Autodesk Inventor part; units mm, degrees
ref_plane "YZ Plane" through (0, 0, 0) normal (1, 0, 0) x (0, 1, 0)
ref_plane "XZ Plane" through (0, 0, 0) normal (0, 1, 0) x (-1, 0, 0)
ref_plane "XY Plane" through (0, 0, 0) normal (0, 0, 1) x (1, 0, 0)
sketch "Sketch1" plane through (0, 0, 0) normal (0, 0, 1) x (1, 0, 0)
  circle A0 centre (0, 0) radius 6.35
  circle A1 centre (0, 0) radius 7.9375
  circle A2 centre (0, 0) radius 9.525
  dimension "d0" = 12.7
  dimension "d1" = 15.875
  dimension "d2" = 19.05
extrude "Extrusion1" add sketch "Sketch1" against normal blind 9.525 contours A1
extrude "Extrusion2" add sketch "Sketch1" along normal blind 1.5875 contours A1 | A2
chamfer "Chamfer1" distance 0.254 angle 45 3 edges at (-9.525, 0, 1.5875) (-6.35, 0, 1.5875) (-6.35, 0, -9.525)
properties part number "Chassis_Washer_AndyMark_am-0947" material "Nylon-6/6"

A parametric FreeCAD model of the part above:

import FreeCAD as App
import Part
import Sketcher
from FreeCAD import Vector
Q = App.Units.Quantity


def edges_at(feature, points):
    """Names of the edges that pass closest to the given points."""
    edges = feature.Shape.Edges
    near = lambda p: min(range(len(edges)), key=lambda i: edges[i].distToShape(Part.Vertex(*p))[0])
    return sorted({f"Edge{near(p) + 1}" for p in points})

doc = App.newDocument("Part")
body = doc.addObject("PartDesign::Body", "Body")

# Sketch on XY plane
sketch1 = doc.addObject("Sketcher::SketchObject", "Sketch")
body.addObject(sketch1)
sketch1.AttachmentSupport = (doc.XY_Plane, [""])
sketch1.MapMode = "FlatFace"
sketch1.addGeometry(Part.Circle(Vector(0, 0, 0), Vector(0, 0, 1), 7.9375), False)
sketch1.addGeometry(Part.Circle(Vector(0, 0, 0), Vector(0, 0, 1), 6.35), False)
sketch1.addConstraint(Sketcher.Constraint("Coincident", 0, 3, -1, 1))
sketch1.addConstraint(Sketcher.Constraint("Coincident", 1, 3, -1, 1))
sketch1.addConstraint(Sketcher.Constraint("Diameter", 1, Q("0.5 in")))
sketch1.addConstraint(Sketcher.Constraint("Diameter", 0, Q("0.625 in")))
pad1 = doc.addObject("PartDesign::Pad", "Pad")
body.addObject(pad1)
pad1.Profile = sketch1
pad1.Length = Q("0.375 in")
pad1.Reversed = True

# Sketch on XY plane
sketch2 = doc.addObject("Sketcher::SketchObject", "Sketch001")
body.addObject(sketch2)
sketch2.AttachmentSupport = (doc.XY_Plane, [""])
sketch2.MapMode = "FlatFace"
sketch2.addGeometry(Part.Circle(Vector(0, 0, 0), Vector(0, 0, 1), 9.525), False)
sketch2.addGeometry(Part.Circle(Vector(0, 0, 0), Vector(0, 0, 1), 6.35), False)
sketch2.addConstraint(Sketcher.Constraint("Coincident", 0, 3, -1, 1))
sketch2.addConstraint(Sketcher.Constraint("Coincident", 1, 3, -1, 1))
sketch2.addConstraint(Sketcher.Constraint("Diameter", 1, Q("0.5 in")))
sketch2.addConstraint(Sketcher.Constraint("Diameter", 0, Q("0.75 in")))
pad2 = doc.addObject("PartDesign::Pad", "Pad001")
body.addObject(pad2)
pad2.Profile = sketch2
pad2.Length = Q("0.0625 in")
doc.recompute()

chamfer = doc.addObject("PartDesign::Chamfer", "Chamfer")
body.addObject(chamfer)
chamfer.Base = (pad2, edges_at(pad2, [(-9.525, 0, 1.587), (-6.35, 0, 1.587), (-6.35, 0, -9.525)]))
chamfer.Size = Q("0.01 in")

doc.recompute()
